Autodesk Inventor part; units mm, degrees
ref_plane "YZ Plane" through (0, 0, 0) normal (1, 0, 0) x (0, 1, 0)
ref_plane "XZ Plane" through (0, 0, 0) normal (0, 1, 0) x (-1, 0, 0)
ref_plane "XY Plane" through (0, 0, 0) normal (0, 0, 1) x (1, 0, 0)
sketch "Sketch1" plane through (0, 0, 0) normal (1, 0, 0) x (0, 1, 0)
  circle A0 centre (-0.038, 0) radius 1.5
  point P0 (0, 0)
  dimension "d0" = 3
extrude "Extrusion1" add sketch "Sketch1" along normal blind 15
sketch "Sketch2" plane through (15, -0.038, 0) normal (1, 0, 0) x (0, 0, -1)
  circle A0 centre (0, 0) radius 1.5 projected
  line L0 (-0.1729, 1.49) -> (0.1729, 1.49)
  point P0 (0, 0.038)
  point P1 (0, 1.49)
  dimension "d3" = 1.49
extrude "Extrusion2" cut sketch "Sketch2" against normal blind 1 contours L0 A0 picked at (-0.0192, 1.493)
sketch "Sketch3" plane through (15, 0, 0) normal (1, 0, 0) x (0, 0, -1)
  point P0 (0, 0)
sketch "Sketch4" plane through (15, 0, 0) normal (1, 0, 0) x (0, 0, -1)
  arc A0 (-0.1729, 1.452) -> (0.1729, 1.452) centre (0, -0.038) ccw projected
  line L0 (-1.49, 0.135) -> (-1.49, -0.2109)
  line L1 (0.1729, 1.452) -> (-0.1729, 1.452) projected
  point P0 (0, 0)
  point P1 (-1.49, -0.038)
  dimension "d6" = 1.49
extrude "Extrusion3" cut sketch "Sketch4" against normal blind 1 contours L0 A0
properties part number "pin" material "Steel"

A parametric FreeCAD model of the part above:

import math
import FreeCAD as App
import Part
import Sketcher
from FreeCAD import Vector
Q = App.Units.Quantity

doc = App.newDocument("Part")
body = doc.addObject("PartDesign::Body", "Body")

sketch1 = doc.addObject("Sketcher::SketchObject", "Sketch")
body.addObject(sketch1)
sketch1.AttachmentSupport = (doc.YZ_Plane, [""])
sketch1.MapMode = "FlatFace"
sketch1.addGeometry(Part.Circle(Vector(0, 0, 0), Vector(0, 0, 1), 1.5), False)
sketch1.addConstraint(Sketcher.Constraint("PointOnObject", 0, 3, -1))
sketch1.addConstraint(Sketcher.Constraint("Diameter", 0, Q("3 mm")))
sketch1.addConstraint(Sketcher.Constraint("DistanceX", 0, 3, -1, 1, Q("0.038 mm")))
pad1 = doc.addObject("PartDesign::Pad", "Pad")
body.addObject(pad1)
pad1.Profile = sketch1
pad1.Length = 15

sketch2 = doc.addObject("Sketcher::SketchObject", "Sketch001")
body.addObject(sketch2)
sketch2.AttachmentSupport = (doc.YZ_Plane, [""])
sketch2.MapMode = "FlatFace"
sketch2.AttachmentOffset = App.Placement(Vector(0, 0, 15), App.Rotation())
sketch2.addGeometry(Part.LineSegment(Vector(1.45, 0.17, 0), Vector(1.45, -0.17, 0)), False)
sketch2.addGeometry(Part.ArcOfCircle(Part.Circle(Vector(-0.04, 0, 0), Vector(0, 0, 1), 1.5), math.radians(-6.62), math.radians(6.62)), False)
sketch2.addConstraint(Sketcher.Constraint("Coincident", 0, 1, 1, 2))
sketch2.addConstraint(Sketcher.Constraint("Coincident", 1, 1, 0, 2))
sketch2.addConstraint(Sketcher.Constraint("Vertical", 0))
sketch2.addConstraint(Sketcher.Constraint("PointOnObject", 1, 3, -1))
sketch2.addConstraint(Sketcher.Constraint("Radius", 1, Q("1.5 mm")))
sketch2.addConstraint(Sketcher.Constraint("DistanceX", 1, 3, 0, 1, Q("1.49 mm")))
sketch2.addConstraint(Sketcher.Constraint("DistanceX", 1, 3, -1, 1, Q("0.038 mm")))
pocket1 = doc.addObject("PartDesign::Pocket", "Pocket")
body.addObject(pocket1)
pocket1.Profile = sketch2
pocket1.Length = 1

sketch3 = doc.addObject("Sketcher::SketchObject", "Sketch002")
body.addObject(sketch3)
sketch3.AttachmentSupport = (doc.YZ_Plane, [""])
sketch3.MapMode = "FlatFace"
sketch3.AttachmentOffset = App.Placement(Vector(0, 0, 15), App.Rotation())
sketch3.addGeometry(Part.LineSegment(Vector(-0.21, 1.49, 0), Vector(0.14, 1.49, 0)), False)
sketch3.addGeometry(Part.ArcOfCircle(Part.Circle(Vector(-0.04, 0, 0), Vector(0, 0, 1), 1.5), math.radians(83.38), math.radians(96.62)), False)
sketch3.addConstraint(Sketcher.Constraint("Coincident", 0, 1, 1, 2))
sketch3.addConstraint(Sketcher.Constraint("Coincident", 1, 1, 0, 2))
sketch3.addConstraint(Sketcher.Constraint("Horizontal", 0))
sketch3.addConstraint(Sketcher.Constraint("PointOnObject", 1, 3, -1))
sketch3.addConstraint(Sketcher.Constraint("Radius", 1, Q("1.5 mm")))
sketch3.addConstraint(Sketcher.Constraint("DistanceY", -1, 1, 0, 1, Q("1.49 mm")))
sketch3.addConstraint(Sketcher.Constraint("DistanceX", 1, 3, -1, 1, Q("0.038 mm")))
pocket2 = doc.addObject("PartDesign::Pocket", "Pocket001")
body.addObject(pocket2)
pocket2.Profile = sketch3
pocket2.Length = 1

doc.recompute()
